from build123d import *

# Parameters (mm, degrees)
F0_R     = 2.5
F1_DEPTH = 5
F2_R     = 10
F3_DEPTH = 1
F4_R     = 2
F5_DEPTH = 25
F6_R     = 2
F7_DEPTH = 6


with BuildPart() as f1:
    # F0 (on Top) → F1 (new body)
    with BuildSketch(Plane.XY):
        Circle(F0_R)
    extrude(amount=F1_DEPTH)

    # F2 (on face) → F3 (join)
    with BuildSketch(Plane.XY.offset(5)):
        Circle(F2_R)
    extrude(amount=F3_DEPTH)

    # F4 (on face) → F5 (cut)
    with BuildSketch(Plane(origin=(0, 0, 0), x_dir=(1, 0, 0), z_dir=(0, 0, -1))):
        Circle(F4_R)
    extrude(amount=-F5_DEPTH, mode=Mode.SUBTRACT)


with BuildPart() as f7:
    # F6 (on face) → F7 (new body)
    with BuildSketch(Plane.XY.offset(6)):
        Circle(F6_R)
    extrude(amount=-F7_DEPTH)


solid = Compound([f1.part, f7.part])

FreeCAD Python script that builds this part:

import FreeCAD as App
import Part
import Sketcher
Q = App.Units.Quantity

doc = App.newDocument("Part")
body = doc.addObject("PartDesign::Body", "Body")

# Sketch on XY plane
sketch1 = body.newObject("Sketcher::SketchObject", "Sketch")
sketch1.AttachmentSupport = (doc.getObject("XY_Plane"), [""])
sketch1.MapMode = "FlatFace"
sketch1.addGeometry(Part.Circle(App.Vector(0, 0, 0), App.Vector(0, 0, 1), 2.5), False)
sketch1.addConstraint(Sketcher.Constraint("Coincident", 0, 3, -1, 1))
sketch1.addConstraint(Sketcher.Constraint("Diameter", 0, Q("5 mm")))
pad1 = body.newObject("PartDesign::Pad", "Pad")
pad1.Profile = sketch1
pad1.Length = 5

# Sketch on XY plane
sketch2 = body.newObject("Sketcher::SketchObject", "Sketch001")
sketch2.AttachmentSupport = (doc.getObject("XY_Plane"), [""])
sketch2.MapMode = "FlatFace"
sketch2.AttachmentOffset = App.Placement(App.Vector(0, 0, 5), App.Rotation())
sketch2.addGeometry(Part.Circle(App.Vector(0, 0, 0), App.Vector(0, 0, 1), 10), False)
sketch2.addConstraint(Sketcher.Constraint("Coincident", 0, 3, -1, 1))
sketch2.addConstraint(Sketcher.Constraint("Diameter", 0, Q("20 mm")))
pad2 = body.newObject("PartDesign::Pad", "Pad001")
pad2.Profile = sketch2
pad2.Length = 1

# Sketch on XY plane
sketch3 = body.newObject("Sketcher::SketchObject", "Sketch002")
sketch3.AttachmentSupport = (doc.getObject("XY_Plane"), [""])
sketch3.MapMode = "FlatFace"
sketch3.addGeometry(Part.Circle(App.Vector(0, 0, 0), App.Vector(0, 0, 1), 2), False)
sketch3.addConstraint(Sketcher.Constraint("Coincident", 0, 3, -1, 1))
sketch3.addConstraint(Sketcher.Constraint("Diameter", 0, Q("4 mm")))
pocket1 = body.newObject("PartDesign::Pocket", "Pocket")
pocket1.Profile = sketch3
pocket1.Length = 25
pocket1.Reversed = True
body2 = doc.addObject("PartDesign::Body", "Body001")

# Sketch on XY plane
sketch4 = body2.newObject("Sketcher::SketchObject", "Sketch003")
sketch4.AttachmentSupport = (doc.getObject("XY_Plane001"), [""])
sketch4.MapMode = "FlatFace"
sketch4.AttachmentOffset = App.Placement(App.Vector(0, 0, 6), App.Rotation())
sketch4.addGeometry(Part.Circle(App.Vector(0, 0, 0), App.Vector(0, 0, 1), 2), False)
sketch4.addConstraint(Sketcher.Constraint("Coincident", 0, 3, -1, 1))
sketch4.addConstraint(Sketcher.Constraint("Diameter", 0, Q("4 mm")))
pad3 = body2.newObject("PartDesign::Pad", "Pad002")
pad3.Profile = sketch4
pad3.Length = 6
pad3.Reversed = True

doc.recompute()
